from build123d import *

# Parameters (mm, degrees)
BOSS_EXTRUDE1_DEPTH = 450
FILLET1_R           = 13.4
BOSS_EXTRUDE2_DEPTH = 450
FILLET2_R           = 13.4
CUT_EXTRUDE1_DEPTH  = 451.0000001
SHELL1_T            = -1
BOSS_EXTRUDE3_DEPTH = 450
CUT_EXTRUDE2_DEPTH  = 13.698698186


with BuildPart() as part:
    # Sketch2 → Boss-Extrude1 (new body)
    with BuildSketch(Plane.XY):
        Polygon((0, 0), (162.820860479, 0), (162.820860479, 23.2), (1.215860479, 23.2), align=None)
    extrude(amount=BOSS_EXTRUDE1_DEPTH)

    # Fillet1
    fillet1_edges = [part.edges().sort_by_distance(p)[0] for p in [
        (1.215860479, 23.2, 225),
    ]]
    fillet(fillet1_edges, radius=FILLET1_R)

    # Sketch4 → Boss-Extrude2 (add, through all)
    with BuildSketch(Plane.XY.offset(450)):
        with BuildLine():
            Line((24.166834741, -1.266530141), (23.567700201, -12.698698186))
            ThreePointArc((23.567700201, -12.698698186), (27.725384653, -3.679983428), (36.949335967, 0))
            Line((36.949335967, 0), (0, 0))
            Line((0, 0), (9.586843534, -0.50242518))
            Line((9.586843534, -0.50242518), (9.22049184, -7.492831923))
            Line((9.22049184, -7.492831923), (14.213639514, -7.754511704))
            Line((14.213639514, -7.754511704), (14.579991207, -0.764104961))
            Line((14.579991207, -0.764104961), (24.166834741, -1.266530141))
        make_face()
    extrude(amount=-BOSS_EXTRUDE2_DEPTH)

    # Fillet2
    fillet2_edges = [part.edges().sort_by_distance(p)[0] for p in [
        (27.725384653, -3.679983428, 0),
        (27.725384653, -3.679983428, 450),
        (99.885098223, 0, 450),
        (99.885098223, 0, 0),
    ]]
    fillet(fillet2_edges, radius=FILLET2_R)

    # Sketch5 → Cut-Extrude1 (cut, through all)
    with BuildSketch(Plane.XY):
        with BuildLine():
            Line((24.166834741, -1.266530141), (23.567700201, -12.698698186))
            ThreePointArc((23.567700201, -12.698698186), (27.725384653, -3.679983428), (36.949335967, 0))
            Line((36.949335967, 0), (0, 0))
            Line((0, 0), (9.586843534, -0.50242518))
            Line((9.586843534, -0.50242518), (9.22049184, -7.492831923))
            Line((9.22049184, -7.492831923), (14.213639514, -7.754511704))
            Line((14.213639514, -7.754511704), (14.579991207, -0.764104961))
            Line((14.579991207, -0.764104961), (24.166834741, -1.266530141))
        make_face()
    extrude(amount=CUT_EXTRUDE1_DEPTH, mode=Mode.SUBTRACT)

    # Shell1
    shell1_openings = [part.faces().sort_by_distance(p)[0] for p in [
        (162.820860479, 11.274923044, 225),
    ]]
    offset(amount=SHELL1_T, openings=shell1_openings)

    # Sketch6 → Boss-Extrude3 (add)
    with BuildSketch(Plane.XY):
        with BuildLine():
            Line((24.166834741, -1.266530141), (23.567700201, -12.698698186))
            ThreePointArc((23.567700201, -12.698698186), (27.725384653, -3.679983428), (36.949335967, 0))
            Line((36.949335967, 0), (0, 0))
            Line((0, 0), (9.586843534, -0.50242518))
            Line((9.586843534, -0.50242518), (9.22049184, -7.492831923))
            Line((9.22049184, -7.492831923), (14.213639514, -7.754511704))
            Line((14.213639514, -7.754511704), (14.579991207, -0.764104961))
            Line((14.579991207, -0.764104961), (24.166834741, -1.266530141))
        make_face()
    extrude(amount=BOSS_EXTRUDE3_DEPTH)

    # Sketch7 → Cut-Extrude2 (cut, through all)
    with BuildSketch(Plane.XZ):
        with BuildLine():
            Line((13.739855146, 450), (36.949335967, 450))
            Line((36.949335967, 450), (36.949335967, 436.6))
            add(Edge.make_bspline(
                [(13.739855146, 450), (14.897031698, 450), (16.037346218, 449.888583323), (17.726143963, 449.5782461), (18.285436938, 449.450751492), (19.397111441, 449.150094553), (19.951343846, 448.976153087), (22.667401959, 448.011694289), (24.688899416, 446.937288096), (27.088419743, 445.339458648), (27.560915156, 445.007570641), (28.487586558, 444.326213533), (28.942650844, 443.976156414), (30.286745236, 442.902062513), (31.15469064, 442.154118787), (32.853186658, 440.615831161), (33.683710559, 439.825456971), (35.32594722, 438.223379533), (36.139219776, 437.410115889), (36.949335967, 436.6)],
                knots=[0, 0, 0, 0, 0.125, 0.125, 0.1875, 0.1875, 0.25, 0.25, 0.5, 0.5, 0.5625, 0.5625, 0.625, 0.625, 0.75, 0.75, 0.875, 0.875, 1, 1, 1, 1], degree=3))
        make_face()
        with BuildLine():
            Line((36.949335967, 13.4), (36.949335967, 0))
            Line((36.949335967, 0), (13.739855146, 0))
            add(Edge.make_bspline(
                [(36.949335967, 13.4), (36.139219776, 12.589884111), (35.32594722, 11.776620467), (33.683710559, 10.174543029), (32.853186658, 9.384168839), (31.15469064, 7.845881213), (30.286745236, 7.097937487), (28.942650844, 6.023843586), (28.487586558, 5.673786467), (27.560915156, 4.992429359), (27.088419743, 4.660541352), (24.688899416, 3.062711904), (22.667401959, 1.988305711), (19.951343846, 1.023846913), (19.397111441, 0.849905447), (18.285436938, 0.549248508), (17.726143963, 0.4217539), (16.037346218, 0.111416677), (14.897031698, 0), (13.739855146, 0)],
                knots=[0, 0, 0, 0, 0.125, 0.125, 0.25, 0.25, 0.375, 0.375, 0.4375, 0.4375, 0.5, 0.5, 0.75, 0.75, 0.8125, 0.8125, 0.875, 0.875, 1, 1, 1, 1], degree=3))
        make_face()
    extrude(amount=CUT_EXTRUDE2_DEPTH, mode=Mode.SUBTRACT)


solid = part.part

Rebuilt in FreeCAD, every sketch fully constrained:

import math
import FreeCAD as App
import Part
import Sketcher
Q = App.Units.Quantity


def edges_at(feature, points):
    """Names of the edges that pass closest to the given points."""
    edges = feature.Shape.Edges
    near = lambda p: min(range(len(edges)), key=lambda i: edges[i].distToShape(Part.Vertex(*p))[0])
    return sorted({f"Edge{near(p) + 1}" for p in points})


def faces_at(feature, points):
    """Names of the faces that lie closest to the given points."""
    faces = feature.Shape.Faces
    near = lambda p: min(range(len(faces)), key=lambda i: faces[i].distToShape(Part.Vertex(*p))[0])
    return sorted({f"Face{near(p) + 1}" for p in points})


def add_polygon(sketch, points):
    """Adds a closed chain of lines whose ends are joined by coincident constraints."""
    first, n = sketch.GeometryCount, len(points)
    for a, b in zip(points, points[1:] + points[:1]):
        sketch.addGeometry(Part.LineSegment(App.Vector(*a, 0), App.Vector(*b, 0)), False)
    for i in range(n):
        sketch.addConstraint(Sketcher.Constraint("Coincident", first + i, 2, first + (i + 1) % n, 1))

doc = App.newDocument("Part")
body = doc.addObject("PartDesign::Body", "Body")

# Sketch on XY plane
sketch1 = doc.addObject("Sketcher::SketchObject", "Sketch")
body.addObject(sketch1)
sketch1.AttachmentSupport = (doc.XY_Plane, [""])
sketch1.MapMode = "FlatFace"
add_polygon(sketch1, [(0, 0), (163, 0), (163, 23), (1, 23)])  # lines 0-3
sketch1.addConstraint(Sketcher.Constraint("Horizontal", 0))
sketch1.addConstraint(Sketcher.Constraint("Vertical", 1))
sketch1.addConstraint(Sketcher.Constraint("Horizontal", 2))
sketch1.addConstraint(Sketcher.Constraint("Coincident", 3, 2, -1, 1))
sketch1.addConstraint(Sketcher.Constraint("Angle", 3, Q("-93 deg")))
sketch1.addConstraint(Sketcher.Constraint("DistanceY", 1, 1, 1, 2, Q("23.2 mm")))
sketch1.addConstraint(Sketcher.Constraint("DistanceX", 2, 2, 2, 1, Q("161.605 mm")))
pad1 = doc.addObject("PartDesign::Pad", "Pad")
body.addObject(pad1)
pad1.Profile = sketch1
pad1.Length = 450
doc.recompute()

fillet = doc.addObject("PartDesign::Fillet", "Fillet")
body.addObject(fillet)
fillet.Base = (pad1, edges_at(pad1, [(1.216, 23.2, 225)]))
fillet.Radius = 13.4

# Sketch on XY plane
sketch2 = doc.addObject("Sketcher::SketchObject", "Sketch001")
body.addObject(sketch2)
sketch2.AttachmentSupport = (doc.XY_Plane, [""])
sketch2.MapMode = "FlatFace"
sketch2.AttachmentOffset = App.Placement(App.Vector(0, 0, 450), App.Rotation())
sketch2.addGeometry(Part.LineSegment(App.Vector(24, -1, 0), App.Vector(24, -13, 0)), False)
sketch2.addGeometry(Part.ArcOfCircle(Part.Circle(App.Vector(37, -13, 0), App.Vector(0, 0, 1), 13), math.radians(90), math.radians(177)), False)
sketch2.addGeometry(Part.LineSegment(App.Vector(37, 0, 0), App.Vector(0, 0, 0)), False)
sketch2.addGeometry(Part.LineSegment(App.Vector(0, 0, 0), App.Vector(10, -1, 0)), False)
sketch2.addGeometry(Part.LineSegment(App.Vector(10, -1, 0), App.Vector(9, -7, 0)), False)
sketch2.addGeometry(Part.LineSegment(App.Vector(9, -7, 0), App.Vector(14, -8, 0)), False)
sketch2.addGeometry(Part.LineSegment(App.Vector(14, -8, 0), App.Vector(15, -1, 0)), False)
sketch2.addGeometry(Part.LineSegment(App.Vector(15, -1, 0), App.Vector(24, -1, 0)), False)
sketch2.addConstraint(Sketcher.Constraint("Tangent", 0, 2, 1, 2))
sketch2.addConstraint(Sketcher.Constraint("Tangent", 1, 1, 2, 1))
sketch2.addConstraint(Sketcher.Constraint("Coincident", 2, 2, 3, 1))
sketch2.addConstraint(Sketcher.Constraint("Coincident", 3, 2, 4, 1))
sketch2.addConstraint(Sketcher.Constraint("Coincident", 4, 2, 5, 1))
sketch2.addConstraint(Sketcher.Constraint("Coincident", 5, 2, 6, 1))
sketch2.addConstraint(Sketcher.Constraint("Coincident", 6, 2, 7, 1))
sketch2.addConstraint(Sketcher.Constraint("Coincident", 7, 2, 0, 1))
sketch2.addConstraint(Sketcher.Constraint("Horizontal", 2))
sketch2.addConstraint(Sketcher.Constraint("Coincident", 2, 2, -1, 1))
sketch2.addConstraint(Sketcher.Constraint("Perpendicular", 0, 3))
sketch2.addConstraint(Sketcher.Constraint("Perpendicular", 3, 4))
sketch2.addConstraint(Sketcher.Constraint("Perpendicular", 4, 5))
sketch2.addConstraint(Sketcher.Constraint("Perpendicular", 5, 6))
sketch2.addConstraint(Sketcher.Constraint("Perpendicular", 6, 7))
sketch2.addConstraint(Sketcher.Constraint("Equal", 4, 6))
sketch2.addConstraint(Sketcher.Constraint("Equal", 3, 7))
sketch2.addConstraint(Sketcher.Constraint("Radius", 1, Q("13.4 mm")))
sketch2.addConstraint(Sketcher.Constraint("Angle", 0, Q("-93 deg")))
sketch2.addConstraint(Sketcher.Constraint("Distance", 4, Q("7 mm")))
sketch2.addConstraint(Sketcher.Constraint("Distance", 5, Q("5 mm")))
sketch2.addConstraint(Sketcher.Constraint("Distance", 3, Q("9.6 mm")))
pad2 = doc.addObject("PartDesign::Pad", "Pad001")
body.addObject(pad2)
pad2.Profile = sketch2
pad2.Length = 450
pad2.Reversed = True
doc.recompute()

fillet2 = doc.addObject("PartDesign::Fillet", "Fillet001")
body.addObject(fillet2)
fillet2.Base = (pad2, edges_at(pad2, [
    (27.725, -3.68, 0),
    (27.725, -3.68, 450),
    (99.885, 0, 450),
    (99.885, 0, 0),
]))
fillet2.Radius = 13.4

# Sketch on XY plane
sketch3 = doc.addObject("Sketcher::SketchObject", "Sketch002")
body.addObject(sketch3)
sketch3.AttachmentSupport = (doc.XY_Plane, [""])
sketch3.MapMode = "FlatFace"
sketch3.addGeometry(Part.LineSegment(App.Vector(24, -1, 0), App.Vector(24, -13, 0)), False)
sketch3.addGeometry(Part.ArcOfCircle(Part.Circle(App.Vector(37, -13, 0), App.Vector(0, 0, 1), 13), math.radians(90), math.radians(177)), False)
sketch3.addGeometry(Part.LineSegment(App.Vector(37, 0, 0), App.Vector(0, 0, 0)), False)
sketch3.addGeometry(Part.LineSegment(App.Vector(0, 0, 0), App.Vector(10, -1, 0)), False)
sketch3.addGeometry(Part.LineSegment(App.Vector(10, -1, 0), App.Vector(9, -7, 0)), False)
sketch3.addGeometry(Part.LineSegment(App.Vector(9, -7, 0), App.Vector(14, -8, 0)), False)
sketch3.addGeometry(Part.LineSegment(App.Vector(14, -8, 0), App.Vector(15, -1, 0)), False)
sketch3.addGeometry(Part.LineSegment(App.Vector(15, -1, 0), App.Vector(24, -1, 0)), False)
sketch3.addConstraint(Sketcher.Constraint("Tangent", 0, 2, 1, 2))
sketch3.addConstraint(Sketcher.Constraint("Tangent", 1, 1, 2, 1))
sketch3.addConstraint(Sketcher.Constraint("Coincident", 2, 2, 3, 1))
sketch3.addConstraint(Sketcher.Constraint("Coincident", 3, 2, 4, 1))
sketch3.addConstraint(Sketcher.Constraint("Coincident", 4, 2, 5, 1))
sketch3.addConstraint(Sketcher.Constraint("Coincident", 5, 2, 6, 1))
sketch3.addConstraint(Sketcher.Constraint("Coincident", 6, 2, 7, 1))
sketch3.addConstraint(Sketcher.Constraint("Coincident", 7, 2, 0, 1))
sketch3.addConstraint(Sketcher.Constraint("Horizontal", 2))
sketch3.addConstraint(Sketcher.Constraint("Coincident", 2, 2, -1, 1))
sketch3.addConstraint(Sketcher.Constraint("Perpendicular", 0, 3))
sketch3.addConstraint(Sketcher.Constraint("Perpendicular", 3, 4))
sketch3.addConstraint(Sketcher.Constraint("Perpendicular", 4, 5))
sketch3.addConstraint(Sketcher.Constraint("Perpendicular", 5, 6))
sketch3.addConstraint(Sketcher.Constraint("Perpendicular", 6, 7))
sketch3.addConstraint(Sketcher.Constraint("Equal", 4, 6))
sketch3.addConstraint(Sketcher.Constraint("Equal", 3, 7))
sketch3.addConstraint(Sketcher.Constraint("Radius", 1, Q("13.4 mm")))
sketch3.addConstraint(Sketcher.Constraint("Angle", 0, Q("-93 deg")))
sketch3.addConstraint(Sketcher.Constraint("Distance", 4, Q("7 mm")))
sketch3.addConstraint(Sketcher.Constraint("Distance", 5, Q("5 mm")))
sketch3.addConstraint(Sketcher.Constraint("Distance", 3, Q("9.6 mm")))
pocket1 = doc.addObject("PartDesign::Pocket", "Pocket")
body.addObject(pocket1)
pocket1.Profile = sketch3
pocket1.Type = "ThroughAll"
pocket1.Reversed = True
doc.recompute()

thickness = doc.addObject("PartDesign::Thickness", "Thickness")
body.addObject(thickness)
thickness.Base = (pocket1, faces_at(pocket1, [(162.821, 11.6, 225)]))
thickness.Value = 1
thickness.Reversed = True
thickness.Join = "Arc"

# Sketch on XY plane
sketch4 = doc.addObject("Sketcher::SketchObject", "Sketch003")
body.addObject(sketch4)
sketch4.AttachmentSupport = (doc.XY_Plane, [""])
sketch4.MapMode = "FlatFace"
sketch4.addGeometry(Part.LineSegment(App.Vector(24, -1, 0), App.Vector(24, -13, 0)), False)
sketch4.addGeometry(Part.ArcOfCircle(Part.Circle(App.Vector(37, -13, 0), App.Vector(0, 0, 1), 13), math.radians(90), math.radians(177)), False)
sketch4.addGeometry(Part.LineSegment(App.Vector(37, 0, 0), App.Vector(0, 0, 0)), False)
sketch4.addGeometry(Part.LineSegment(App.Vector(0, 0, 0), App.Vector(10, -1, 0)), False)
sketch4.addGeometry(Part.LineSegment(App.Vector(10, -1, 0), App.Vector(9, -7, 0)), False)
sketch4.addGeometry(Part.LineSegment(App.Vector(9, -7, 0), App.Vector(14, -8, 0)), False)
sketch4.addGeometry(Part.LineSegment(App.Vector(14, -8, 0), App.Vector(15, -1, 0)), False)
sketch4.addGeometry(Part.LineSegment(App.Vector(15, -1, 0), App.Vector(24, -1, 0)), False)
sketch4.addConstraint(Sketcher.Constraint("Tangent", 0, 2, 1, 2))
sketch4.addConstraint(Sketcher.Constraint("Tangent", 1, 1, 2, 1))
sketch4.addConstraint(Sketcher.Constraint("Coincident", 2, 2, 3, 1))
sketch4.addConstraint(Sketcher.Constraint("Coincident", 3, 2, 4, 1))
sketch4.addConstraint(Sketcher.Constraint("Coincident", 4, 2, 5, 1))
sketch4.addConstraint(Sketcher.Constraint("Coincident", 5, 2, 6, 1))
sketch4.addConstraint(Sketcher.Constraint("Coincident", 6, 2, 7, 1))
sketch4.addConstraint(Sketcher.Constraint("Coincident", 7, 2, 0, 1))
sketch4.addConstraint(Sketcher.Constraint("Horizontal", 2))
sketch4.addConstraint(Sketcher.Constraint("Coincident", 2, 2, -1, 1))
sketch4.addConstraint(Sketcher.Constraint("Perpendicular", 0, 3))
sketch4.addConstraint(Sketcher.Constraint("Perpendicular", 3, 4))
sketch4.addConstraint(Sketcher.Constraint("Perpendicular", 4, 5))
sketch4.addConstraint(Sketcher.Constraint("Perpendicular", 5, 6))
sketch4.addConstraint(Sketcher.Constraint("Perpendicular", 6, 7))
sketch4.addConstraint(Sketcher.Constraint("Equal", 4, 6))
sketch4.addConstraint(Sketcher.Constraint("Equal", 3, 7))
sketch4.addConstraint(Sketcher.Constraint("Radius", 1, Q("13.4 mm")))
sketch4.addConstraint(Sketcher.Constraint("Angle", 0, Q("-93 deg")))
sketch4.addConstraint(Sketcher.Constraint("Distance", 4, Q("7 mm")))
sketch4.addConstraint(Sketcher.Constraint("Distance", 5, Q("5 mm")))
sketch4.addConstraint(Sketcher.Constraint("Distance", 3, Q("9.6 mm")))
pad3 = doc.addObject("PartDesign::Pad", "Pad002")
body.addObject(pad3)
pad3.Profile = sketch4
pad3.Length = 450

# Sketch on XZ plane
sketch5 = doc.addObject("Sketcher::SketchObject", "Sketch004")
body.addObject(sketch5)
sketch5.AttachmentSupport = (doc.XZ_Plane, [""])
sketch5.MapMode = "FlatFace"
sketch5.addGeometry(Part.LineSegment(App.Vector(36.949336, 450, 0), App.Vector(13.739855, 450, 0)), False)
sketch5.addGeometry(Part.BSplineCurve([App.Vector(13.739855, 450, 0), App.Vector(14.897032, 450, 0), App.Vector(16.037346, 449.888583, 0), App.Vector(17.726144, 449.578246, 0), App.Vector(18.285437, 449.450751, 0), App.Vector(19.397111, 449.150095, 0), App.Vector(19.951344, 448.976153, 0), App.Vector(22.667402, 448.011694, 0), App.Vector(24.688899, 446.937288, 0), App.Vector(27.08842, 445.339459, 0), App.Vector(27.560915, 445.007571, 0), App.Vector(28.487587, 444.326214, 0), App.Vector(28.942651, 443.976156, 0), App.Vector(30.286745, 442.902063, 0), App.Vector(31.154691, 442.154119, 0), App.Vector(32.853187, 440.615831, 0), App.Vector(33.683711, 439.825457, 0), App.Vector(35.325947, 438.22338, 0), App.Vector(36.13922, 437.410116, 0), App.Vector(36.949336, 436.6, 0)], [4, 2, 2, 2, 2, 2, 2, 2, 2, 4], [0, 0.125, 0.1875, 0.25, 0.5, 0.5625, 0.625, 0.75, 0.875, 1], False, 3, [1, 1, 1, 1, 1, 1, 1, 1, 1, 1, 1, 1, 1, 1, 1, 1, 1, 1, 1, 1], False), False)
sketch5.addGeometry(Part.LineSegment(App.Vector(36.949336, 436.6, 0), App.Vector(36.949336, 450, 0)), False)
sketch5.addGeometry(Part.LineSegment(App.Vector(36.949336, 0, 0), App.Vector(36.949336, 13.4, 0)), False)
sketch5.addGeometry(Part.BSplineCurve([App.Vector(36.949336, 13.4, 0), App.Vector(36.13922, 12.589884, 0), App.Vector(35.325947, 11.77662, 0), App.Vector(33.683711, 10.174543, 0), App.Vector(32.853187, 9.384169, 0), App.Vector(31.154691, 7.845881, 0), App.Vector(30.286745, 7.097937, 0), App.Vector(28.942651, 6.023844, 0), App.Vector(28.487587, 5.673786, 0), App.Vector(27.560915, 4.992429, 0), App.Vector(27.08842, 4.660541, 0), App.Vector(24.688899, 3.062712, 0), App.Vector(22.667402, 1.988306, 0), App.Vector(19.951344, 1.023847, 0), App.Vector(19.397111, 0.849905, 0), App.Vector(18.285437, 0.549249, 0), App.Vector(17.726144, 0.421754, 0), App.Vector(16.037346, 0.111417, 0), App.Vector(14.897032, 0, 0), App.Vector(13.739855, 0, 0)], [4, 2, 2, 2, 2, 2, 2, 2, 2, 4], [0, 0.125, 0.25, 0.375, 0.4375, 0.5, 0.75, 0.8125, 0.875, 1], False, 3, [1, 1, 1, 1, 1, 1, 1, 1, 1, 1, 1, 1, 1, 1, 1, 1, 1, 1, 1, 1], False), False)
sketch5.addGeometry(Part.LineSegment(App.Vector(13.739855, 0, 0), App.Vector(36.949336, 0, 0)), False)
sketch5.addConstraint(Sketcher.Constraint("Block", 1))
sketch5.addConstraint(Sketcher.Constraint("Block", 4))
sketch5.addConstraint(Sketcher.Constraint("Coincident", 0, 2, 1, 1))
sketch5.addConstraint(Sketcher.Constraint("Coincident", 1, 2, 2, 1))
sketch5.addConstraint(Sketcher.Constraint("Coincident", 2, 2, 0, 1))
sketch5.addConstraint(Sketcher.Constraint("Coincident", 3, 2, 4, 1))
sketch5.addConstraint(Sketcher.Constraint("Coincident", 4, 2, 5, 1))
sketch5.addConstraint(Sketcher.Constraint("Coincident", 5, 2, 3, 1))
sketch5.addConstraint(Sketcher.Constraint("Horizontal", 0))
sketch5.addConstraint(Sketcher.Constraint("Vertical", 2))
sketch5.addConstraint(Sketcher.Constraint("Vertical", 3))
sketch5.addConstraint(Sketcher.Constraint("Horizontal", 5))
pocket2 = doc.addObject("PartDesign::Pocket", "Pocket001")
body.addObject(pocket2)
pocket2.Profile = sketch5
pocket2.Type = "ThroughAll"
pocket2.Reversed = True

doc.recompute()
